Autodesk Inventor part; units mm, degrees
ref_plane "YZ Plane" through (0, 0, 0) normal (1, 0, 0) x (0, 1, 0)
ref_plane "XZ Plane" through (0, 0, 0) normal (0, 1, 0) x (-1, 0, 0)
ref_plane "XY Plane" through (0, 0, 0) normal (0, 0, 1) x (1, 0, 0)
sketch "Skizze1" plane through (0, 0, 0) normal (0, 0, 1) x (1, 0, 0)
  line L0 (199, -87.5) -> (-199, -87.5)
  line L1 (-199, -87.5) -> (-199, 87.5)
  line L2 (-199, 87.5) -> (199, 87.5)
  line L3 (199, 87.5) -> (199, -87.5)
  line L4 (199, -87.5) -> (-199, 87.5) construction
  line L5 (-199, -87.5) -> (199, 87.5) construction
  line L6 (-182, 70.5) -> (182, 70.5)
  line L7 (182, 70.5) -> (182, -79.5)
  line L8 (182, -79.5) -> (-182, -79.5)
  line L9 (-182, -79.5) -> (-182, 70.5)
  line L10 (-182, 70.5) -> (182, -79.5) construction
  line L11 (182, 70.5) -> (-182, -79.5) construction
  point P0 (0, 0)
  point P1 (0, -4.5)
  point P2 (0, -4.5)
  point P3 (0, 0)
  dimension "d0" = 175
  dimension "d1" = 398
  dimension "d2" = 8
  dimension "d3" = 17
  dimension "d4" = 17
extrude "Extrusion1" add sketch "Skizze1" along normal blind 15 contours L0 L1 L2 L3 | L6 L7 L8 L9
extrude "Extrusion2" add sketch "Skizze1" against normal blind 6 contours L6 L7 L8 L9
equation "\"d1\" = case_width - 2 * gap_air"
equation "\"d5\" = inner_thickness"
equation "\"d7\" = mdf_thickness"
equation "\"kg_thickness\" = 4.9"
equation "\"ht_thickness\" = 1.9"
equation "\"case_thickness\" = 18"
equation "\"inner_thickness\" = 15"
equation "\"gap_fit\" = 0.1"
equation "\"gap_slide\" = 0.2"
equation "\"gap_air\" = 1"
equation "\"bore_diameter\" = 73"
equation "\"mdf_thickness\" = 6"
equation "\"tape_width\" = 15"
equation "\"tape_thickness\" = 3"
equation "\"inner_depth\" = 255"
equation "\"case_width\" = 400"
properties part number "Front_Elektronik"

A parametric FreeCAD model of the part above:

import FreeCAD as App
import Part
import Sketcher

V = App.Vector
Q = App.Units.Quantity


def add_polygon(sketch, points):
    """Adds a closed chain of lines whose ends are joined by coincident constraints."""
    first, n = sketch.GeometryCount, len(points)
    for a, b in zip(points, points[1:] + points[:1]):
        sketch.addGeometry(Part.LineSegment(App.Vector(*a, 0), App.Vector(*b, 0)), False)
    for i in range(n):
        sketch.addConstraint(Sketcher.Constraint("Coincident", first + i, 2, first + (i + 1) % n, 1))

doc = App.newDocument("Part")
body = doc.addObject("PartDesign::Body", "Body")

# Sketch on XY plane
sketch1 = body.newObject("Sketcher::SketchObject", "Sketch")
sketch1.AttachmentSupport = (doc.getObject("XY_Plane"), [""])
sketch1.MapMode = "FlatFace"
add_polygon(sketch1, [(-199, -87.5), (199, -87.5), (199, 87.5), (-199, 87.5)])  # lines 0-3
sketch1.addConstraint([
    Sketcher.Constraint("Horizontal", 0),
    Sketcher.Constraint("Vertical", 1),
    Sketcher.Constraint("Horizontal", 2),
    Sketcher.Constraint("Vertical", 3),
    Sketcher.Constraint("Symmetric", 0, 2, 2, 2, -1, 1),
    Sketcher.Constraint("DistanceX", 0, 1, 0, 2, Q("398 mm")),
    Sketcher.Constraint("DistanceY", 1, 1, 1, 2, Q("175 mm")),
])
pad1 = body.newObject("PartDesign::Pad", "Pad")
pad1.Profile = sketch1
pad1.Length = 15

# Sketch on XY plane
sketch2 = body.newObject("Sketcher::SketchObject", "Sketch001")
sketch2.AttachmentSupport = (doc.getObject("XY_Plane"), [""])
sketch2.MapMode = "FlatFace"
add_polygon(sketch2, [(182, 70.5), (-182, 70.5), (-182, -79.5), (182, -79.5)])  # lines 0-3
sketch2.addConstraint([
    Sketcher.Constraint("Horizontal", 0),
    Sketcher.Constraint("Vertical", 1),
    Sketcher.Constraint("Horizontal", 2),
    Sketcher.Constraint("Vertical", 3),
    Sketcher.Constraint("DistanceX", 0, 2, 0, 1, Q("364 mm")),
    Sketcher.Constraint("DistanceY", 1, 2, 1, 1, Q("150 mm")),
    Sketcher.Constraint("DistanceX", 0, 2, -1, 1, Q("182 mm")),
    Sketcher.Constraint("DistanceY", -1, 1, 0, 2, Q("70.5 mm")),
])
pad2 = body.newObject("PartDesign::Pad", "Pad001")
pad2.Profile = sketch2
pad2.Length = 6
pad2.Reversed = True

doc.recompute()
